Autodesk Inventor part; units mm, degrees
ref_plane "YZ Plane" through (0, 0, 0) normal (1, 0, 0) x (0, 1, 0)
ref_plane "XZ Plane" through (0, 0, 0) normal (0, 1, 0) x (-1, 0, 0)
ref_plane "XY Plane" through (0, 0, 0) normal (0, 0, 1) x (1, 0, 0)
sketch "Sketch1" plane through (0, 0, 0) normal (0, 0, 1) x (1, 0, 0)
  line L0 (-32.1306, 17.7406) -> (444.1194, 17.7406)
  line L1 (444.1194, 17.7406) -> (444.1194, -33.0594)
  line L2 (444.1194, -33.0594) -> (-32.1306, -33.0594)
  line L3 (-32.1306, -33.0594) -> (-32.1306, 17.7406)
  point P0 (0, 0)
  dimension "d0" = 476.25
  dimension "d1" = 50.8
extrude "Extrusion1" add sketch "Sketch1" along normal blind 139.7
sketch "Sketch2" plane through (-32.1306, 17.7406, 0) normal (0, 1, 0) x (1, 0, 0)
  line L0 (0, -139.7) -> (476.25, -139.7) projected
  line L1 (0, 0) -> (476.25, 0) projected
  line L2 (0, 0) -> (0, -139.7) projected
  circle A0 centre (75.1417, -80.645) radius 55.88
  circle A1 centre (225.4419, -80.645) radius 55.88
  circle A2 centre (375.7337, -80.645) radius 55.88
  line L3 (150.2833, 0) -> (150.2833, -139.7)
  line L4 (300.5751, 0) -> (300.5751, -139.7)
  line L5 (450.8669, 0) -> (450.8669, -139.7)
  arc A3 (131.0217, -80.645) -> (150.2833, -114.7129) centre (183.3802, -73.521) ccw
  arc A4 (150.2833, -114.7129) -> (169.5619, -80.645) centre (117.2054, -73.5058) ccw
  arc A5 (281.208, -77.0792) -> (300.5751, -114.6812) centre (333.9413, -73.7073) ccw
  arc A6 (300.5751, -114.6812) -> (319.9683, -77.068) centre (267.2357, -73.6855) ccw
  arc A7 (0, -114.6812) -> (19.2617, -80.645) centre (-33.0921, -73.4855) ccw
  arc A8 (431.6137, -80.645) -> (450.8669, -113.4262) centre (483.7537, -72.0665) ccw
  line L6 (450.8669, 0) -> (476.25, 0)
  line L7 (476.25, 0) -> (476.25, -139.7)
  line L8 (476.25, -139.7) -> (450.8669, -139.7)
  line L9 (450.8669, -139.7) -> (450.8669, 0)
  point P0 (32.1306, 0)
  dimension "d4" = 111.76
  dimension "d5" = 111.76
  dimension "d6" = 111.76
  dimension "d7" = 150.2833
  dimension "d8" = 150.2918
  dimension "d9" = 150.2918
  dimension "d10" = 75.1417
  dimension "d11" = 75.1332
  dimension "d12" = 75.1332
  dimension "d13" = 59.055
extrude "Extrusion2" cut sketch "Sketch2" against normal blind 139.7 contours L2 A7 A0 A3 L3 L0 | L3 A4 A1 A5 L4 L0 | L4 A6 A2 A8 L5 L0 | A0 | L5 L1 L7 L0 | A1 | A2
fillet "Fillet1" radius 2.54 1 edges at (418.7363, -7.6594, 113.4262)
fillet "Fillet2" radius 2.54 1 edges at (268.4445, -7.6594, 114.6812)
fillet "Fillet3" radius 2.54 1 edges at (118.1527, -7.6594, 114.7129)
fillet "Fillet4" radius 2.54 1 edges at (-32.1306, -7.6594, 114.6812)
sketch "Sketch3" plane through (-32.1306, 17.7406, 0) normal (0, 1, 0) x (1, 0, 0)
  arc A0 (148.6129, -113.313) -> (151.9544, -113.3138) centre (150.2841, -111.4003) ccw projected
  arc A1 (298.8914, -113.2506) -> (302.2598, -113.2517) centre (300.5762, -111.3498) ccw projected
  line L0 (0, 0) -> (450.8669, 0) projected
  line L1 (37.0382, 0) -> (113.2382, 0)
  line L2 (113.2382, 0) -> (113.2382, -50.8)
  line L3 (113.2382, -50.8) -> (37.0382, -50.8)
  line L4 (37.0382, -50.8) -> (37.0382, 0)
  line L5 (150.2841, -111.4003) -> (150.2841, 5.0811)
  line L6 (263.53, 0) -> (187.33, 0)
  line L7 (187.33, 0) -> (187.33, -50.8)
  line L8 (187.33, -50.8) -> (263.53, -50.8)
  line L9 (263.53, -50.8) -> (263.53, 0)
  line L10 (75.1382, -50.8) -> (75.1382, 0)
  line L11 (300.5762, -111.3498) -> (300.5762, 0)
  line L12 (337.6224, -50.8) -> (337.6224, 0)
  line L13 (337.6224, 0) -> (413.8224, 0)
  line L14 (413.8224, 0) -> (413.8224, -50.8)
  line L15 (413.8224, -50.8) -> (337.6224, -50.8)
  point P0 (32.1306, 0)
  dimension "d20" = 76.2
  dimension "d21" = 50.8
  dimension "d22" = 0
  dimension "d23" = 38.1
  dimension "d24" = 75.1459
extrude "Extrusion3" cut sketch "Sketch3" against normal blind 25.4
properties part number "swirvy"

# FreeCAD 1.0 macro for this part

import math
import FreeCAD as App
import Part
import Sketcher
from FreeCAD import Vector
Q = App.Units.Quantity


def edges_at(feature, points):
    """Names of the edges that pass closest to the given points."""
    edges = feature.Shape.Edges
    near = lambda p: min(range(len(edges)), key=lambda i: edges[i].distToShape(Part.Vertex(*p))[0])
    return sorted({f"Edge{near(p) + 1}" for p in points})

doc = App.newDocument("Part")
body = doc.addObject("PartDesign::Body", "Body")

# Sketch on XY plane
sketch1 = doc.addObject("Sketcher::SketchObject", "Sketch")
body.addObject(sketch1)
sketch1.AttachmentSupport = (doc.XY_Plane, [""])
sketch1.MapMode = "FlatFace"
sketch1.addGeometry(Part.LineSegment(Vector(444, 18, 0), Vector(-32, 18, 0)), False)
sketch1.addGeometry(Part.LineSegment(Vector(-32, 18, 0), Vector(-32, -33, 0)), False)
sketch1.addGeometry(Part.LineSegment(Vector(-32, -33, 0), Vector(444, -33, 0)), False)
sketch1.addGeometry(Part.LineSegment(Vector(444, -33, 0), Vector(444, 18, 0)), False)
sketch1.addConstraint(Sketcher.Constraint("Coincident", 0, 2, 1, 1))
sketch1.addConstraint(Sketcher.Constraint("Coincident", 1, 2, 2, 1))
sketch1.addConstraint(Sketcher.Constraint("Coincident", 2, 2, 3, 1))
sketch1.addConstraint(Sketcher.Constraint("Coincident", 3, 2, 0, 1))
sketch1.addConstraint(Sketcher.Constraint("Horizontal", 0))
sketch1.addConstraint(Sketcher.Constraint("Vertical", 1))
sketch1.addConstraint(Sketcher.Constraint("Horizontal", 2))
sketch1.addConstraint(Sketcher.Constraint("Vertical", 3))
sketch1.addConstraint(Sketcher.Constraint("DistanceY", 1, 2, 1, 1, Q("2 in")))
sketch1.addConstraint(Sketcher.Constraint("DistanceX", 0, 2, 0, 1, Q("18.75 in")))
sketch1.addConstraint(Sketcher.Constraint("DistanceX", 0, 2, -1, 1, 32.1306))
sketch1.addConstraint(Sketcher.Constraint("DistanceY", -1, 1, 0, 2, 17.7406))
pad1 = doc.addObject("PartDesign::Pad", "Pad")
body.addObject(pad1)
pad1.Profile = sketch1
pad1.Length = Q("5.5 in")

# Sketch on XZ plane
sketch2 = doc.addObject("Sketcher::SketchObject", "Sketch001")
body.addObject(sketch2)
sketch2.AttachmentSupport = (doc.XZ_Plane, [""])
sketch2.MapMode = "FlatFace"
sketch2.AttachmentOffset = App.Placement(Vector(0, 0, -17.7406), App.Rotation())
sketch2.addGeometry(Part.LineSegment(Vector(-32, 115, 0), Vector(-32, 140, 0)), False)
sketch2.addGeometry(Part.LineSegment(Vector(-32, 140, 0), Vector(444, 140, 0)), False)
sketch2.addGeometry(Part.LineSegment(Vector(444, 140, 0), Vector(444, 0, 0)), False)
sketch2.addGeometry(Part.LineSegment(Vector(444, 0, 0), Vector(419, 0, 0)), False)
sketch2.addGeometry(Part.LineSegment(Vector(419, 0, 0), Vector(419, 113, 0)), False)
sketch2.addGeometry(Part.ArcOfCircle(Part.Circle(Vector(452, 72, 0), Vector(0, 0, 1), 53), math.radians(128), math.radians(171)), False)
sketch2.addGeometry(Part.ArcOfCircle(Part.Circle(Vector(344, 81, 0), Vector(0, 0, 1), 56), math.radians(-176), math.radians(0)), False)
sketch2.addGeometry(Part.ArcOfCircle(Part.Circle(Vector(235, 74, 0), Vector(0, 0, 1), 53), math.radians(4), math.radians(51)), False)
sketch2.addGeometry(Part.ArcOfCircle(Part.Circle(Vector(302, 74, 0), Vector(0, 0, 1), 53), math.radians(129), math.radians(176)), False)
sketch2.addGeometry(Part.ArcOfCircle(Part.Circle(Vector(193, 81, 0), Vector(0, 0, 1), 56), math.radians(180), math.radians(356)), False)
sketch2.addGeometry(Part.ArcOfCircle(Part.Circle(Vector(85, 74, 0), Vector(0, 0, 1), 53), math.radians(8), math.radians(51)), False)
sketch2.addGeometry(Part.ArcOfCircle(Part.Circle(Vector(151, 74, 0), Vector(0, 0, 1), 53), math.radians(129), math.radians(172)), False)
sketch2.addGeometry(Part.ArcOfCircle(Part.Circle(Vector(43, 81, 0), Vector(0, 0, 1), 56), math.radians(180), math.radians(360)), False)
sketch2.addGeometry(Part.ArcOfCircle(Part.Circle(Vector(-65, 73, 0), Vector(0, 0, 1), 53), math.radians(8), math.radians(51)), False)
sketch2.addConstraint(Sketcher.Constraint("Coincident", 0, 2, 1, 1))
sketch2.addConstraint(Sketcher.Constraint("Coincident", 1, 2, 2, 1))
sketch2.addConstraint(Sketcher.Constraint("Coincident", 2, 2, 3, 1))
sketch2.addConstraint(Sketcher.Constraint("Coincident", 3, 2, 4, 1))
sketch2.addConstraint(Sketcher.Constraint("Coincident", 4, 2, 5, 1))
sketch2.addConstraint(Sketcher.Constraint("Coincident", 5, 2, 6, 2))
sketch2.addConstraint(Sketcher.Constraint("Tangent", 6, 1, 7, 1))
sketch2.addConstraint(Sketcher.Constraint("Coincident", 7, 2, 8, 1))
sketch2.addConstraint(Sketcher.Constraint("Tangent", 8, 2, 9, 2))
sketch2.addConstraint(Sketcher.Constraint("Coincident", 9, 1, 10, 1))
sketch2.addConstraint(Sketcher.Constraint("Coincident", 10, 2, 11, 1))
sketch2.addConstraint(Sketcher.Constraint("Coincident", 11, 2, 12, 2))
sketch2.addConstraint(Sketcher.Constraint("Coincident", 12, 1, 13, 1))
sketch2.addConstraint(Sketcher.Constraint("Coincident", 13, 2, 0, 1))
sketch2.addConstraint(Sketcher.Constraint("Vertical", 0))
sketch2.addConstraint(Sketcher.Constraint("Horizontal", 1))
sketch2.addConstraint(Sketcher.Constraint("Vertical", 2))
sketch2.addConstraint(Sketcher.Constraint("Horizontal", 3))
sketch2.addConstraint(Sketcher.Constraint("Vertical", 4))
sketch2.addConstraint(Sketcher.Constraint("Equal", 5, 7))
sketch2.addConstraint(Sketcher.Constraint("Equal", 7, 8))
sketch2.addConstraint(Sketcher.Constraint("Equal", 6, 9))
sketch2.addConstraint(Sketcher.Constraint("Equal", 8, 10))
sketch2.addConstraint(Sketcher.Constraint("Equal", 10, 11))
sketch2.addConstraint(Sketcher.Constraint("Equal", 9, 12))
sketch2.addConstraint(Sketcher.Constraint("Equal", 11, 13))
sketch2.addConstraint(Sketcher.Constraint("PointOnObject", 2, 2, -1))
sketch2.addConstraint(Sketcher.Constraint("Horizontal", 6, 3, 9, 3))
sketch2.addConstraint(Sketcher.Constraint("Horizontal", 9, 3, 12, 3))
sketch2.addConstraint(Sketcher.Constraint("Horizontal", 12, 3, 5, 2))
sketch2.addConstraint(Sketcher.Constraint("Horizontal", 5, 2, 9, 1))
sketch2.addConstraint(Sketcher.Constraint("Horizontal", 9, 1, 11, 2))
sketch2.addConstraint(Sketcher.Constraint("Horizontal", 11, 2, 12, 1))
sketch2.addConstraint(Sketcher.Constraint("Horizontal", 7, 2, 13, 2))
sketch2.addConstraint(Sketcher.Constraint("Radius", 6, Q("2.2 in")))
sketch2.addConstraint(Sketcher.Constraint("DistanceY", 2, 2, 2, 1, Q("5.5 in")))
sketch2.addConstraint(Sketcher.Constraint("DistanceX", 9, 3, 6, 3, Q("5.917 in")))
sketch2.addConstraint(Sketcher.Constraint("DistanceY", 12, 3, 0, 2, Q("2.325 in")))
sketch2.addConstraint(Sketcher.Constraint("DistanceX", 6, 3, 3, 2, Q("2.958 in")))
sketch2.addConstraint(Sketcher.Constraint("DistanceX", 9, 3, 7, 2, Q("2.958 in")))
sketch2.addConstraint(Sketcher.Constraint("DistanceX", 1, 1, 1, 2, Q("18.75 in")))
sketch2.addConstraint(Sketcher.Constraint("DistanceY", 0, 1, 0, 2, Q("0.985 in")))
sketch2.addConstraint(Sketcher.Constraint("Radius", 5, 52.841))
sketch2.addConstraint(Sketcher.Constraint("DistanceX", 0, 2, 12, 3, 75.1417))
sketch2.addConstraint(Sketcher.Constraint("DistanceX", 12, 3, 10, 2, 75.1416))
sketch2.addConstraint(Sketcher.Constraint("DistanceY", 4, 1, 4, 2, Q("4.4656 in")))
sketch2.addConstraint(Sketcher.Constraint("DistanceX", 10, 2, 9, 1, Q("0.759 in")))
sketch2.addConstraint(Sketcher.Constraint("DistanceX", -1, 1, 7, 3, Q("9.2561 in")))
sketch2.addConstraint(Sketcher.Constraint("DistanceX", -1, 1, 10, 3, Q("3.3494 in")))
pocket1 = doc.addObject("PartDesign::Pocket", "Pocket")
body.addObject(pocket1)
pocket1.Profile = sketch2
pocket1.Length = Q("5.5 in")
pocket1.Reversed = True
doc.recompute()

fillet = doc.addObject("PartDesign::Fillet", "Fillet")
body.addObject(fillet)
fillet.Base = (pocket1, edges_at(pocket1, [(418.736, -7.659, 113.426)]))
fillet.Radius = Q("0.1 in")
doc.recompute()

fillet2 = doc.addObject("PartDesign::Fillet", "Fillet001")
body.addObject(fillet2)
fillet2.Base = (fillet, edges_at(fillet, [(268.445, -7.659, 114.681)]))
fillet2.Radius = Q("0.1 in")
doc.recompute()

fillet3 = doc.addObject("PartDesign::Fillet", "Fillet002")
body.addObject(fillet3)
fillet3.Base = (fillet2, edges_at(fillet2, [(118.153, -7.659, 114.713)]))
fillet3.Radius = Q("0.1 in")
doc.recompute()

fillet4 = doc.addObject("PartDesign::Fillet", "Fillet003")
body.addObject(fillet4)
fillet4.Base = (fillet3, edges_at(fillet3, [(-32.131, -7.659, 114.681)]))
fillet4.Radius = Q("0.1 in")

# Sketch on XZ plane
sketch3 = doc.addObject("Sketcher::SketchObject", "Sketch002")
body.addObject(sketch3)
sketch3.AttachmentSupport = (doc.XZ_Plane, [""])
sketch3.MapMode = "FlatFace"
sketch3.AttachmentOffset = App.Placement(Vector(0, 0, -17.7406), App.Rotation())
sketch3.addGeometry(Part.LineSegment(Vector(382, 0, 0), Vector(305, 0, 0)), False)
sketch3.addGeometry(Part.LineSegment(Vector(305, 0, 0), Vector(305, 51, 0)), False)
sketch3.addGeometry(Part.LineSegment(Vector(305, 51, 0), Vector(382, 51, 0)), False)
sketch3.addGeometry(Part.LineSegment(Vector(382, 51, 0), Vector(382, 0, 0)), False)
sketch3.addGeometry(Part.LineSegment(Vector(231, 0, 0), Vector(155, 0, 0)), False)
sketch3.addGeometry(Part.LineSegment(Vector(155, 0, 0), Vector(155, 51, 0)), False)
sketch3.addGeometry(Part.LineSegment(Vector(155, 51, 0), Vector(231, 51, 0)), False)
sketch3.addGeometry(Part.LineSegment(Vector(231, 51, 0), Vector(231, 0, 0)), False)
sketch3.addGeometry(Part.LineSegment(Vector(5, 0, 0), Vector(5, 51, 0)), False)
sketch3.addGeometry(Part.LineSegment(Vector(5, 51, 0), Vector(81, 51, 0)), False)
sketch3.addGeometry(Part.LineSegment(Vector(81, 51, 0), Vector(81, 0, 0)), False)
sketch3.addGeometry(Part.LineSegment(Vector(81, 0, 0), Vector(5, 0, 0)), False)
sketch3.addConstraint(Sketcher.Constraint("Coincident", 0, 2, 1, 1))
sketch3.addConstraint(Sketcher.Constraint("Coincident", 1, 2, 2, 1))
sketch3.addConstraint(Sketcher.Constraint("Coincident", 2, 2, 3, 1))
sketch3.addConstraint(Sketcher.Constraint("Coincident", 3, 2, 0, 1))
sketch3.addConstraint(Sketcher.Constraint("Coincident", 4, 2, 5, 1))
sketch3.addConstraint(Sketcher.Constraint("Coincident", 5, 2, 6, 1))
sketch3.addConstraint(Sketcher.Constraint("Coincident", 6, 2, 7, 1))
sketch3.addConstraint(Sketcher.Constraint("Coincident", 7, 2, 4, 1))
sketch3.addConstraint(Sketcher.Constraint("Coincident", 8, 2, 9, 1))
sketch3.addConstraint(Sketcher.Constraint("Coincident", 9, 2, 10, 1))
sketch3.addConstraint(Sketcher.Constraint("Coincident", 10, 2, 11, 1))
sketch3.addConstraint(Sketcher.Constraint("Coincident", 11, 2, 8, 1))
sketch3.addConstraint(Sketcher.Constraint("Horizontal", 0))
sketch3.addConstraint(Sketcher.Constraint("Vertical", 1))
sketch3.addConstraint(Sketcher.Constraint("Horizontal", 2))
sketch3.addConstraint(Sketcher.Constraint("Vertical", 3))
sketch3.addConstraint(Sketcher.Constraint("Horizontal", 4))
sketch3.addConstraint(Sketcher.Constraint("Vertical", 5))
sketch3.addConstraint(Sketcher.Constraint("Horizontal", 6))
sketch3.addConstraint(Sketcher.Constraint("Vertical", 7))
sketch3.addConstraint(Sketcher.Constraint("Vertical", 8))
sketch3.addConstraint(Sketcher.Constraint("Horizontal", 9))
sketch3.addConstraint(Sketcher.Constraint("Vertical", 10))
sketch3.addConstraint(Sketcher.Constraint("Horizontal", 11))
sketch3.addConstraint(Sketcher.Constraint("PointOnObject", 0, 2, -1))
sketch3.addConstraint(Sketcher.Constraint("PointOnObject", 4, 2, -1))
sketch3.addConstraint(Sketcher.Constraint("PointOnObject", 10, 2, -1))
sketch3.addConstraint(Sketcher.Constraint("Horizontal", 2, 2, 5, 2))
sketch3.addConstraint(Sketcher.Constraint("Horizontal", 6, 2, 8, 2))
sketch3.addConstraint(Sketcher.Constraint("Equal", 2, 4))
sketch3.addConstraint(Sketcher.Constraint("Equal", 6, 9))
sketch3.addConstraint(Sketcher.Constraint("DistanceX", 0, 2, 0, 1, Q("3 in")))
sketch3.addConstraint(Sketcher.Constraint("DistanceY", 1, 1, 1, 2, Q("2 in")))
sketch3.addConstraint(Sketcher.Constraint("DistanceX", 8, 2, 5, 2, Q("5.917 in")))
sketch3.addConstraint(Sketcher.Constraint("DistanceX", -1, 1, 0, 2, 305.4918))
sketch3.addConstraint(Sketcher.Constraint("DistanceX", -1, 1, 4, 2, 155.1994))
pocket2 = doc.addObject("PartDesign::Pocket", "Pocket001")
body.addObject(pocket2)
pocket2.Profile = sketch3
pocket2.Length = Q("1 in")
pocket2.Reversed = True

doc.recompute()
